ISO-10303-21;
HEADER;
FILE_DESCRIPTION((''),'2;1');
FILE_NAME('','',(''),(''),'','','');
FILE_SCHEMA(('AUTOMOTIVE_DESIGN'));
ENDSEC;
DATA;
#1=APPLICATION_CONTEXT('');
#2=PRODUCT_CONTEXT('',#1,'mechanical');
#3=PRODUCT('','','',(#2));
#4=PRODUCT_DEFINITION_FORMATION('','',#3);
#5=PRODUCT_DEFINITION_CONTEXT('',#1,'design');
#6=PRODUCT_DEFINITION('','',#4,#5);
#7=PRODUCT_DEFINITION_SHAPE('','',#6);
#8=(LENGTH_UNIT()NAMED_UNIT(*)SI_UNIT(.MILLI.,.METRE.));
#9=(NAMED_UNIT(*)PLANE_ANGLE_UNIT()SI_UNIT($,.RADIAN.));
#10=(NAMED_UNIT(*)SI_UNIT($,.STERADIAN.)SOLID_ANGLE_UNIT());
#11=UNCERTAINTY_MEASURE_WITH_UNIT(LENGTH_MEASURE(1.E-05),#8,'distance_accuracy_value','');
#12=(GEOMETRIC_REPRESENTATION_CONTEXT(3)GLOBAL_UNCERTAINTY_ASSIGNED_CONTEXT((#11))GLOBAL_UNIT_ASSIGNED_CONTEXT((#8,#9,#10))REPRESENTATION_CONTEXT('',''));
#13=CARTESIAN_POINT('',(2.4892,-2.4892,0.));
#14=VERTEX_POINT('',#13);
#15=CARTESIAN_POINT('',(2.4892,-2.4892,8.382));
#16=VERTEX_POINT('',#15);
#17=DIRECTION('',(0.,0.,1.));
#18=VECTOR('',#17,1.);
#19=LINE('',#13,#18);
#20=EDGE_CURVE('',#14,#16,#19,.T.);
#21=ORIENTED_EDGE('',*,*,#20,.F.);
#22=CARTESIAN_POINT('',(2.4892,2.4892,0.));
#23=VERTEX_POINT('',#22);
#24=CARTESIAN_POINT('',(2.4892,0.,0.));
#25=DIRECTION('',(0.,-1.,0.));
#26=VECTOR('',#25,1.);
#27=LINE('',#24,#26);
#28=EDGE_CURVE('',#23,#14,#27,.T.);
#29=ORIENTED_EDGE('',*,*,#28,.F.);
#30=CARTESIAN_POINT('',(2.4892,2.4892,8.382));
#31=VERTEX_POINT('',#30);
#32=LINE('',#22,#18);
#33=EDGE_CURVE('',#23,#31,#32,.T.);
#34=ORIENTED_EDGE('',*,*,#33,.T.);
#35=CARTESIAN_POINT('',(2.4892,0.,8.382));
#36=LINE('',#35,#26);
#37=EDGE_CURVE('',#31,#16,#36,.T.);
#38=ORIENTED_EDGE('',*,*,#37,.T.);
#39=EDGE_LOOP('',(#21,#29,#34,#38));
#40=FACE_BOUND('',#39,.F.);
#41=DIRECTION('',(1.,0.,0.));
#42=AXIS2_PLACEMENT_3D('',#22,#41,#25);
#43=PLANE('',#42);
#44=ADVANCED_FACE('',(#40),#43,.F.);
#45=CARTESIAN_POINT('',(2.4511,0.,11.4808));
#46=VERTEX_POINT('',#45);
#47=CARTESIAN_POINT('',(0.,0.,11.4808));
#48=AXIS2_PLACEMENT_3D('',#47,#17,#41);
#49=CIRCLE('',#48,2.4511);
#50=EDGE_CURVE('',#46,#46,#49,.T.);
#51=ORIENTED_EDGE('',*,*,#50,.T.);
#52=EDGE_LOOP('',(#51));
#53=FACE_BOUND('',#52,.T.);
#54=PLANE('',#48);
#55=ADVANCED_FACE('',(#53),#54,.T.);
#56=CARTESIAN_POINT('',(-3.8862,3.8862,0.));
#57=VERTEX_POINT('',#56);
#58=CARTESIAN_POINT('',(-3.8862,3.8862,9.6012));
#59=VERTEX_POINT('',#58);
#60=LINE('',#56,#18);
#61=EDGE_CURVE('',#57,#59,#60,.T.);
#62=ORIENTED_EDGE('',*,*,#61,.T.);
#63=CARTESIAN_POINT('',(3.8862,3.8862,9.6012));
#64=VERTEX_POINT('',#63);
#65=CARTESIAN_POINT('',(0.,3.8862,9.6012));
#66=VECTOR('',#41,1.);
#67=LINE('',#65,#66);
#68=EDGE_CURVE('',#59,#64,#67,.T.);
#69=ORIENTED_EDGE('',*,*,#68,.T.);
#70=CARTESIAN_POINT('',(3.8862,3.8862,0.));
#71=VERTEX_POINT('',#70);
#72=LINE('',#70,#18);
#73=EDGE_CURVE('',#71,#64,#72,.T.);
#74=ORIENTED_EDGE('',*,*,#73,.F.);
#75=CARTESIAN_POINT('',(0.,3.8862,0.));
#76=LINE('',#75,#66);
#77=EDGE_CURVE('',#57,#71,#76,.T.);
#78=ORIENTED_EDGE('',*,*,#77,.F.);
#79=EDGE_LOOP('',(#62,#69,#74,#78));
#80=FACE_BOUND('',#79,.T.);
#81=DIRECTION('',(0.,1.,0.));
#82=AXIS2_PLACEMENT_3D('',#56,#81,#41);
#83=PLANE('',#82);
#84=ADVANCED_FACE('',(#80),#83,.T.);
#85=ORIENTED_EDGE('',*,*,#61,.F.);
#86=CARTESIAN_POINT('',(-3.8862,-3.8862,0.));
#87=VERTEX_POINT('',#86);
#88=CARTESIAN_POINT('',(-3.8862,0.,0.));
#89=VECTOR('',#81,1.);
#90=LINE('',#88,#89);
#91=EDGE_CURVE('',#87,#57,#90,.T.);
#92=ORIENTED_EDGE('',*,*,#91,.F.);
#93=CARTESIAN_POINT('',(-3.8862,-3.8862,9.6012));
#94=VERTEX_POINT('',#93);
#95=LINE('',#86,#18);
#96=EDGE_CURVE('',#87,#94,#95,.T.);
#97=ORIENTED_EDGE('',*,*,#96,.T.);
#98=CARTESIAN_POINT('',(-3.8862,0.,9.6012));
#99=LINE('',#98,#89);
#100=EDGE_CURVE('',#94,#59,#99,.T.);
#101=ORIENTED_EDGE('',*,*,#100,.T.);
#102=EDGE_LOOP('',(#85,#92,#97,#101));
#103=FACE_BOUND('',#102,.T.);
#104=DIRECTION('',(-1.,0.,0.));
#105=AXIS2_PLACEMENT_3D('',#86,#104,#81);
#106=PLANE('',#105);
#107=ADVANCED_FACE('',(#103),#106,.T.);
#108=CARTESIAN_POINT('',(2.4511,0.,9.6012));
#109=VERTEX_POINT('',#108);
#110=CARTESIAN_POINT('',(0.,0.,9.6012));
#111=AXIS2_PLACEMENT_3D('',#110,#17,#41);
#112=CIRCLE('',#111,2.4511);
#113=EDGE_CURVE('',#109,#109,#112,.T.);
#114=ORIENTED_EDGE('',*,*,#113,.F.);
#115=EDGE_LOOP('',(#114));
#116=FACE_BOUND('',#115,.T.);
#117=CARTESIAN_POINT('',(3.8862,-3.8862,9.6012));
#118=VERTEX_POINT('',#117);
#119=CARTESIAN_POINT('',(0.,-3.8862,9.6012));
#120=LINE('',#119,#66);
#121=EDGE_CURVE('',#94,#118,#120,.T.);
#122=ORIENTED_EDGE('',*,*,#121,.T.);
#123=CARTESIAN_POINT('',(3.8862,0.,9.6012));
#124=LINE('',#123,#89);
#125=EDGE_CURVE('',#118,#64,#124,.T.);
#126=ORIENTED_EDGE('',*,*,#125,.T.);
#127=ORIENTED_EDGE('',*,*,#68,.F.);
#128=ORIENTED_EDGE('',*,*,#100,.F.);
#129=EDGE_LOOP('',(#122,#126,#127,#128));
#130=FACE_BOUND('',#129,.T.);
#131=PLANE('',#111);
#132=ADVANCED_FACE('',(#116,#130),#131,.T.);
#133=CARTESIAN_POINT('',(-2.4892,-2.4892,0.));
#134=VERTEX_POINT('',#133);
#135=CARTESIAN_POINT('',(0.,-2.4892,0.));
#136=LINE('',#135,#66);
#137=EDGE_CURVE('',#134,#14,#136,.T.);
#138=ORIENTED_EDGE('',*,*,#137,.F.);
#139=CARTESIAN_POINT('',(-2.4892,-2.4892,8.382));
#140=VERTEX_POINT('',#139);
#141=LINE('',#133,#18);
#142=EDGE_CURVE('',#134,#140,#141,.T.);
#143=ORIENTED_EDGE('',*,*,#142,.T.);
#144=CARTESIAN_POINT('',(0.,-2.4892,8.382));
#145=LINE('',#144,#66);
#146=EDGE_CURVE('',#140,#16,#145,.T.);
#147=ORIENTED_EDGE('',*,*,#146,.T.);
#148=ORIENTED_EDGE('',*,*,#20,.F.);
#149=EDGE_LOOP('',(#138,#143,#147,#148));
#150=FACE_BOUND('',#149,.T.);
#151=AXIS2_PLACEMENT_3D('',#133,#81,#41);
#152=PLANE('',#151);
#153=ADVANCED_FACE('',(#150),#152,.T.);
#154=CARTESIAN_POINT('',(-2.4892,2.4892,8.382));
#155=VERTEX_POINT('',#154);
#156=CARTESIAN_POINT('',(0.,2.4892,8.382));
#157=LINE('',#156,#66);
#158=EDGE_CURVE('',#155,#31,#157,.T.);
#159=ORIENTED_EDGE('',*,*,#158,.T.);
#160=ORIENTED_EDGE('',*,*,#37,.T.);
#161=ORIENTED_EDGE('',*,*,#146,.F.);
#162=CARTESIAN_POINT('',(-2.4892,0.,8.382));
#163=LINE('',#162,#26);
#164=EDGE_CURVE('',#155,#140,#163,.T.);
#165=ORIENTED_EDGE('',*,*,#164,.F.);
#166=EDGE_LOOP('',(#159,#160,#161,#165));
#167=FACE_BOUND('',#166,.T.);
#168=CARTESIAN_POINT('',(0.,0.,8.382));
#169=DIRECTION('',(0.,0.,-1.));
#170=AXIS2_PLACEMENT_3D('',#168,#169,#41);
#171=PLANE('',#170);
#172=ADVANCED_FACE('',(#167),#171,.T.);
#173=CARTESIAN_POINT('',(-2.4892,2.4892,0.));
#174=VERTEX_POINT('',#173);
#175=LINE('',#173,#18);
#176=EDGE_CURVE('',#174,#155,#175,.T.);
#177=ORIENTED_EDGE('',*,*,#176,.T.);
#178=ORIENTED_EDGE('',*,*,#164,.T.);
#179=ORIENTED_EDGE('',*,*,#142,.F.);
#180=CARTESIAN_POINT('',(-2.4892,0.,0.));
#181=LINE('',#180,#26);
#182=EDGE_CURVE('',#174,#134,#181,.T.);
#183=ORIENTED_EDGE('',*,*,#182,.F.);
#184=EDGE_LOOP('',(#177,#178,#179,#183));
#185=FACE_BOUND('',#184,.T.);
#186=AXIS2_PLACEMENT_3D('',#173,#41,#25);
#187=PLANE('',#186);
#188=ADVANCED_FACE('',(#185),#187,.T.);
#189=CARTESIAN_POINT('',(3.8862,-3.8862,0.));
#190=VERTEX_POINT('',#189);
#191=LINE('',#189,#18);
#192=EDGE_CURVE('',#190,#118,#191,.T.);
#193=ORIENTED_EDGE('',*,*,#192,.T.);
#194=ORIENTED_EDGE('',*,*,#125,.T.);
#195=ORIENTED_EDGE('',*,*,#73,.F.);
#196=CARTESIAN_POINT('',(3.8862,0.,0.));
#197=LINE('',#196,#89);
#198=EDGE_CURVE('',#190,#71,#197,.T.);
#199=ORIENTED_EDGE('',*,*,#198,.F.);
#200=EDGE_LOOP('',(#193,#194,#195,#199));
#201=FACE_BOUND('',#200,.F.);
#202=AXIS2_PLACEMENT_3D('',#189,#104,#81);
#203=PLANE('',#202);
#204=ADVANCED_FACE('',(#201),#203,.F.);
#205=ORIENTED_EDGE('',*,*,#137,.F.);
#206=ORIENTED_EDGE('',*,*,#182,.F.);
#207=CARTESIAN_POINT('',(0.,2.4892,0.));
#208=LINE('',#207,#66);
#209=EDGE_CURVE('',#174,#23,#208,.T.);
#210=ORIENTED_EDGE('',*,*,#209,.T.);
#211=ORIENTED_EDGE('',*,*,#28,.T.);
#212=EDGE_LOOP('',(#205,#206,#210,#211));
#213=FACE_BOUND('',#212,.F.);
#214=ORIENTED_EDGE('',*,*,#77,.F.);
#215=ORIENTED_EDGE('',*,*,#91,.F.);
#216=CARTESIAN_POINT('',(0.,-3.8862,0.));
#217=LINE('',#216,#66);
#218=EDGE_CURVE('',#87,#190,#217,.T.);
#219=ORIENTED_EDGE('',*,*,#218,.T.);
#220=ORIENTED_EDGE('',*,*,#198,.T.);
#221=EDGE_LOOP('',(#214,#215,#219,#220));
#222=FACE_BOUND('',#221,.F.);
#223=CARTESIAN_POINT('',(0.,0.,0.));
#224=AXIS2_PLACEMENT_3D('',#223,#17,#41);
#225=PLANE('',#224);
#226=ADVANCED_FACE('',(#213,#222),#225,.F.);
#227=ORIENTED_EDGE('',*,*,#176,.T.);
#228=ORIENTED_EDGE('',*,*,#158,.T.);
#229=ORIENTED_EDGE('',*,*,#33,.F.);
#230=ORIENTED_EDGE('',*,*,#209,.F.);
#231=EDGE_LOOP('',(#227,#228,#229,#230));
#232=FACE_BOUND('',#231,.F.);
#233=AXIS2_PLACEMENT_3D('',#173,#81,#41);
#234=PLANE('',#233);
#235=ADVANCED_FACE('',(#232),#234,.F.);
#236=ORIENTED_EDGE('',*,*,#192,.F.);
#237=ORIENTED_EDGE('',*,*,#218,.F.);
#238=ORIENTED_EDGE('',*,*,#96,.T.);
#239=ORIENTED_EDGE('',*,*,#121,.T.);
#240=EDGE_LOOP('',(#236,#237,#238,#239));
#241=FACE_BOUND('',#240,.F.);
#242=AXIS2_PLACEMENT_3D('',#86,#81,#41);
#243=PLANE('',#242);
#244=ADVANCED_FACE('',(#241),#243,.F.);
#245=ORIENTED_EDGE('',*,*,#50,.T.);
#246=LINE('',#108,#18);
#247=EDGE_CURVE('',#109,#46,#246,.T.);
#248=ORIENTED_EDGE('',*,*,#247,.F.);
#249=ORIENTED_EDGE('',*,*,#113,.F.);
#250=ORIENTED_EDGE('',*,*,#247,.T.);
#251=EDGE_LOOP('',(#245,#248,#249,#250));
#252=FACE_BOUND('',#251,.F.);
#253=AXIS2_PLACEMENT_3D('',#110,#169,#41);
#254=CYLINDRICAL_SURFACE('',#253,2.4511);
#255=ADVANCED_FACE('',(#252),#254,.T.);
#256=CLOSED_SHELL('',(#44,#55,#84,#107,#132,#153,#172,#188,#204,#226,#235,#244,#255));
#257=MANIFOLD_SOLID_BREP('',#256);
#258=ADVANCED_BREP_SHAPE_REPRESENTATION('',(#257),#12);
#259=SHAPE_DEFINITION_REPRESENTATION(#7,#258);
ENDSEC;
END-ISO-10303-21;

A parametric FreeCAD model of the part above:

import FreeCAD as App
import Part
import Sketcher
from FreeCAD import Vector
Q = App.Units.Quantity


def add_polygon(sketch, points):
    """Adds a closed chain of lines whose ends are joined by coincident constraints."""
    first, n = sketch.GeometryCount, len(points)
    for a, b in zip(points, points[1:] + points[:1]):
        sketch.addGeometry(Part.LineSegment(App.Vector(*a, 0), App.Vector(*b, 0)), False)
    for i in range(n):
        sketch.addConstraint(Sketcher.Constraint("Coincident", first + i, 2, first + (i + 1) % n, 1))

doc = App.newDocument("Part")
params = doc.addObject("Spreadsheet::Sheet", "Params")
for row, (alias, value) in enumerate([
    ("sketch1_width", "0.306 in"),
    ("pad1_length", "0.378 in"),
    ("sketch2_diameter", "0.193 in"),
    ("pad2_length", "0.074 in"),
    ("sketch3_width", "0.196 in"),
    ("pocket1_length", "0.33 in"),
], start=1):
    params.set(f"A{row}", alias)
    params.set(f"B{row}", "=" + value)
    params.setAlias(f"B{row}", alias)

body = doc.addObject("PartDesign::Body", "Body")

# Sketch on XY plane
sketch1 = body.newObject("Sketcher::SketchObject", "Sketch")
sketch1.AttachmentSupport = (doc.getObject("XY_Plane"), [""])
sketch1.MapMode = "FlatFace"
add_polygon(sketch1, [(-3.8862, 3.8862), (-3.8862, -3.8862), (3.8862, -3.8862), (3.8862, 3.8862)])  # lines 0-3
sketch1.addConstraint([
    Sketcher.Constraint("Vertical", 0),
    Sketcher.Constraint("Horizontal", 1),
    Sketcher.Constraint("Vertical", 2),
    Sketcher.Constraint("Horizontal", 3),
    Sketcher.Constraint("Symmetric", 0, 2, 2, 2, -1, 1),
    Sketcher.Constraint("Equal", 3, 0),
    Sketcher.Constraint("DistanceX", 1, 1, 1, 2, Q("0.306 in")),
])
sketch1.setExpression("Constraints[10]", "Params.sketch1_width")
pad1 = body.newObject("PartDesign::Pad", "Pad")
pad1.Profile = sketch1
pad1.setExpression("Length", "Params.pad1_length")

# Sketch on XY plane
sketch2 = body.newObject("Sketcher::SketchObject", "Sketch001")
sketch2.AttachmentSupport = (doc.getObject("XY_Plane"), [""])
sketch2.MapMode = "FlatFace"
sketch2.AttachmentOffset = App.Placement(Vector(0, 0, 0.378 * 25.4), App.Rotation())
sketch2.addGeometry(Part.Circle(Vector(0, 0, 0), Vector(0, 0, 1), 2.4511), False)
sketch2.addConstraint([
    Sketcher.Constraint("Coincident", 0, 3, -1, 1),
    Sketcher.Constraint("Diameter", 0, Q("0.193 in")),
])
sketch2.setExpression("Constraints[1]", "Params.sketch2_diameter")
pad2 = body.newObject("PartDesign::Pad", "Pad001")
pad2.Profile = sketch2
pad2.setExpression("Length", "Params.pad2_length")

# Sketch on XY plane
sketch3 = body.newObject("Sketcher::SketchObject", "Sketch002")
sketch3.AttachmentSupport = (doc.getObject("XY_Plane"), [""])
sketch3.MapMode = "FlatFace"
add_polygon(sketch3, [(-2.4892, -2.4892), (-2.4892, 2.4892), (2.4892, 2.4892), (2.4892, -2.4892)])  # lines 0-3
sketch3.addConstraint([
    Sketcher.Constraint("Vertical", 0),
    Sketcher.Constraint("Horizontal", 1),
    Sketcher.Constraint("Vertical", 2),
    Sketcher.Constraint("Horizontal", 3),
    Sketcher.Constraint("Symmetric", 0, 2, 2, 2, -1, 1),
    Sketcher.Constraint("Equal", 3, 0),
    Sketcher.Constraint("DistanceX", 1, 1, 1, 2, Q("0.196 in")),
])
sketch3.setExpression("Constraints[10]", "Params.sketch3_width")
pocket1 = body.newObject("PartDesign::Pocket", "Pocket")
pocket1.Profile = sketch3
pocket1.setExpression("Length", "Params.pocket1_length")
pocket1.Reversed = True

doc.recompute()
